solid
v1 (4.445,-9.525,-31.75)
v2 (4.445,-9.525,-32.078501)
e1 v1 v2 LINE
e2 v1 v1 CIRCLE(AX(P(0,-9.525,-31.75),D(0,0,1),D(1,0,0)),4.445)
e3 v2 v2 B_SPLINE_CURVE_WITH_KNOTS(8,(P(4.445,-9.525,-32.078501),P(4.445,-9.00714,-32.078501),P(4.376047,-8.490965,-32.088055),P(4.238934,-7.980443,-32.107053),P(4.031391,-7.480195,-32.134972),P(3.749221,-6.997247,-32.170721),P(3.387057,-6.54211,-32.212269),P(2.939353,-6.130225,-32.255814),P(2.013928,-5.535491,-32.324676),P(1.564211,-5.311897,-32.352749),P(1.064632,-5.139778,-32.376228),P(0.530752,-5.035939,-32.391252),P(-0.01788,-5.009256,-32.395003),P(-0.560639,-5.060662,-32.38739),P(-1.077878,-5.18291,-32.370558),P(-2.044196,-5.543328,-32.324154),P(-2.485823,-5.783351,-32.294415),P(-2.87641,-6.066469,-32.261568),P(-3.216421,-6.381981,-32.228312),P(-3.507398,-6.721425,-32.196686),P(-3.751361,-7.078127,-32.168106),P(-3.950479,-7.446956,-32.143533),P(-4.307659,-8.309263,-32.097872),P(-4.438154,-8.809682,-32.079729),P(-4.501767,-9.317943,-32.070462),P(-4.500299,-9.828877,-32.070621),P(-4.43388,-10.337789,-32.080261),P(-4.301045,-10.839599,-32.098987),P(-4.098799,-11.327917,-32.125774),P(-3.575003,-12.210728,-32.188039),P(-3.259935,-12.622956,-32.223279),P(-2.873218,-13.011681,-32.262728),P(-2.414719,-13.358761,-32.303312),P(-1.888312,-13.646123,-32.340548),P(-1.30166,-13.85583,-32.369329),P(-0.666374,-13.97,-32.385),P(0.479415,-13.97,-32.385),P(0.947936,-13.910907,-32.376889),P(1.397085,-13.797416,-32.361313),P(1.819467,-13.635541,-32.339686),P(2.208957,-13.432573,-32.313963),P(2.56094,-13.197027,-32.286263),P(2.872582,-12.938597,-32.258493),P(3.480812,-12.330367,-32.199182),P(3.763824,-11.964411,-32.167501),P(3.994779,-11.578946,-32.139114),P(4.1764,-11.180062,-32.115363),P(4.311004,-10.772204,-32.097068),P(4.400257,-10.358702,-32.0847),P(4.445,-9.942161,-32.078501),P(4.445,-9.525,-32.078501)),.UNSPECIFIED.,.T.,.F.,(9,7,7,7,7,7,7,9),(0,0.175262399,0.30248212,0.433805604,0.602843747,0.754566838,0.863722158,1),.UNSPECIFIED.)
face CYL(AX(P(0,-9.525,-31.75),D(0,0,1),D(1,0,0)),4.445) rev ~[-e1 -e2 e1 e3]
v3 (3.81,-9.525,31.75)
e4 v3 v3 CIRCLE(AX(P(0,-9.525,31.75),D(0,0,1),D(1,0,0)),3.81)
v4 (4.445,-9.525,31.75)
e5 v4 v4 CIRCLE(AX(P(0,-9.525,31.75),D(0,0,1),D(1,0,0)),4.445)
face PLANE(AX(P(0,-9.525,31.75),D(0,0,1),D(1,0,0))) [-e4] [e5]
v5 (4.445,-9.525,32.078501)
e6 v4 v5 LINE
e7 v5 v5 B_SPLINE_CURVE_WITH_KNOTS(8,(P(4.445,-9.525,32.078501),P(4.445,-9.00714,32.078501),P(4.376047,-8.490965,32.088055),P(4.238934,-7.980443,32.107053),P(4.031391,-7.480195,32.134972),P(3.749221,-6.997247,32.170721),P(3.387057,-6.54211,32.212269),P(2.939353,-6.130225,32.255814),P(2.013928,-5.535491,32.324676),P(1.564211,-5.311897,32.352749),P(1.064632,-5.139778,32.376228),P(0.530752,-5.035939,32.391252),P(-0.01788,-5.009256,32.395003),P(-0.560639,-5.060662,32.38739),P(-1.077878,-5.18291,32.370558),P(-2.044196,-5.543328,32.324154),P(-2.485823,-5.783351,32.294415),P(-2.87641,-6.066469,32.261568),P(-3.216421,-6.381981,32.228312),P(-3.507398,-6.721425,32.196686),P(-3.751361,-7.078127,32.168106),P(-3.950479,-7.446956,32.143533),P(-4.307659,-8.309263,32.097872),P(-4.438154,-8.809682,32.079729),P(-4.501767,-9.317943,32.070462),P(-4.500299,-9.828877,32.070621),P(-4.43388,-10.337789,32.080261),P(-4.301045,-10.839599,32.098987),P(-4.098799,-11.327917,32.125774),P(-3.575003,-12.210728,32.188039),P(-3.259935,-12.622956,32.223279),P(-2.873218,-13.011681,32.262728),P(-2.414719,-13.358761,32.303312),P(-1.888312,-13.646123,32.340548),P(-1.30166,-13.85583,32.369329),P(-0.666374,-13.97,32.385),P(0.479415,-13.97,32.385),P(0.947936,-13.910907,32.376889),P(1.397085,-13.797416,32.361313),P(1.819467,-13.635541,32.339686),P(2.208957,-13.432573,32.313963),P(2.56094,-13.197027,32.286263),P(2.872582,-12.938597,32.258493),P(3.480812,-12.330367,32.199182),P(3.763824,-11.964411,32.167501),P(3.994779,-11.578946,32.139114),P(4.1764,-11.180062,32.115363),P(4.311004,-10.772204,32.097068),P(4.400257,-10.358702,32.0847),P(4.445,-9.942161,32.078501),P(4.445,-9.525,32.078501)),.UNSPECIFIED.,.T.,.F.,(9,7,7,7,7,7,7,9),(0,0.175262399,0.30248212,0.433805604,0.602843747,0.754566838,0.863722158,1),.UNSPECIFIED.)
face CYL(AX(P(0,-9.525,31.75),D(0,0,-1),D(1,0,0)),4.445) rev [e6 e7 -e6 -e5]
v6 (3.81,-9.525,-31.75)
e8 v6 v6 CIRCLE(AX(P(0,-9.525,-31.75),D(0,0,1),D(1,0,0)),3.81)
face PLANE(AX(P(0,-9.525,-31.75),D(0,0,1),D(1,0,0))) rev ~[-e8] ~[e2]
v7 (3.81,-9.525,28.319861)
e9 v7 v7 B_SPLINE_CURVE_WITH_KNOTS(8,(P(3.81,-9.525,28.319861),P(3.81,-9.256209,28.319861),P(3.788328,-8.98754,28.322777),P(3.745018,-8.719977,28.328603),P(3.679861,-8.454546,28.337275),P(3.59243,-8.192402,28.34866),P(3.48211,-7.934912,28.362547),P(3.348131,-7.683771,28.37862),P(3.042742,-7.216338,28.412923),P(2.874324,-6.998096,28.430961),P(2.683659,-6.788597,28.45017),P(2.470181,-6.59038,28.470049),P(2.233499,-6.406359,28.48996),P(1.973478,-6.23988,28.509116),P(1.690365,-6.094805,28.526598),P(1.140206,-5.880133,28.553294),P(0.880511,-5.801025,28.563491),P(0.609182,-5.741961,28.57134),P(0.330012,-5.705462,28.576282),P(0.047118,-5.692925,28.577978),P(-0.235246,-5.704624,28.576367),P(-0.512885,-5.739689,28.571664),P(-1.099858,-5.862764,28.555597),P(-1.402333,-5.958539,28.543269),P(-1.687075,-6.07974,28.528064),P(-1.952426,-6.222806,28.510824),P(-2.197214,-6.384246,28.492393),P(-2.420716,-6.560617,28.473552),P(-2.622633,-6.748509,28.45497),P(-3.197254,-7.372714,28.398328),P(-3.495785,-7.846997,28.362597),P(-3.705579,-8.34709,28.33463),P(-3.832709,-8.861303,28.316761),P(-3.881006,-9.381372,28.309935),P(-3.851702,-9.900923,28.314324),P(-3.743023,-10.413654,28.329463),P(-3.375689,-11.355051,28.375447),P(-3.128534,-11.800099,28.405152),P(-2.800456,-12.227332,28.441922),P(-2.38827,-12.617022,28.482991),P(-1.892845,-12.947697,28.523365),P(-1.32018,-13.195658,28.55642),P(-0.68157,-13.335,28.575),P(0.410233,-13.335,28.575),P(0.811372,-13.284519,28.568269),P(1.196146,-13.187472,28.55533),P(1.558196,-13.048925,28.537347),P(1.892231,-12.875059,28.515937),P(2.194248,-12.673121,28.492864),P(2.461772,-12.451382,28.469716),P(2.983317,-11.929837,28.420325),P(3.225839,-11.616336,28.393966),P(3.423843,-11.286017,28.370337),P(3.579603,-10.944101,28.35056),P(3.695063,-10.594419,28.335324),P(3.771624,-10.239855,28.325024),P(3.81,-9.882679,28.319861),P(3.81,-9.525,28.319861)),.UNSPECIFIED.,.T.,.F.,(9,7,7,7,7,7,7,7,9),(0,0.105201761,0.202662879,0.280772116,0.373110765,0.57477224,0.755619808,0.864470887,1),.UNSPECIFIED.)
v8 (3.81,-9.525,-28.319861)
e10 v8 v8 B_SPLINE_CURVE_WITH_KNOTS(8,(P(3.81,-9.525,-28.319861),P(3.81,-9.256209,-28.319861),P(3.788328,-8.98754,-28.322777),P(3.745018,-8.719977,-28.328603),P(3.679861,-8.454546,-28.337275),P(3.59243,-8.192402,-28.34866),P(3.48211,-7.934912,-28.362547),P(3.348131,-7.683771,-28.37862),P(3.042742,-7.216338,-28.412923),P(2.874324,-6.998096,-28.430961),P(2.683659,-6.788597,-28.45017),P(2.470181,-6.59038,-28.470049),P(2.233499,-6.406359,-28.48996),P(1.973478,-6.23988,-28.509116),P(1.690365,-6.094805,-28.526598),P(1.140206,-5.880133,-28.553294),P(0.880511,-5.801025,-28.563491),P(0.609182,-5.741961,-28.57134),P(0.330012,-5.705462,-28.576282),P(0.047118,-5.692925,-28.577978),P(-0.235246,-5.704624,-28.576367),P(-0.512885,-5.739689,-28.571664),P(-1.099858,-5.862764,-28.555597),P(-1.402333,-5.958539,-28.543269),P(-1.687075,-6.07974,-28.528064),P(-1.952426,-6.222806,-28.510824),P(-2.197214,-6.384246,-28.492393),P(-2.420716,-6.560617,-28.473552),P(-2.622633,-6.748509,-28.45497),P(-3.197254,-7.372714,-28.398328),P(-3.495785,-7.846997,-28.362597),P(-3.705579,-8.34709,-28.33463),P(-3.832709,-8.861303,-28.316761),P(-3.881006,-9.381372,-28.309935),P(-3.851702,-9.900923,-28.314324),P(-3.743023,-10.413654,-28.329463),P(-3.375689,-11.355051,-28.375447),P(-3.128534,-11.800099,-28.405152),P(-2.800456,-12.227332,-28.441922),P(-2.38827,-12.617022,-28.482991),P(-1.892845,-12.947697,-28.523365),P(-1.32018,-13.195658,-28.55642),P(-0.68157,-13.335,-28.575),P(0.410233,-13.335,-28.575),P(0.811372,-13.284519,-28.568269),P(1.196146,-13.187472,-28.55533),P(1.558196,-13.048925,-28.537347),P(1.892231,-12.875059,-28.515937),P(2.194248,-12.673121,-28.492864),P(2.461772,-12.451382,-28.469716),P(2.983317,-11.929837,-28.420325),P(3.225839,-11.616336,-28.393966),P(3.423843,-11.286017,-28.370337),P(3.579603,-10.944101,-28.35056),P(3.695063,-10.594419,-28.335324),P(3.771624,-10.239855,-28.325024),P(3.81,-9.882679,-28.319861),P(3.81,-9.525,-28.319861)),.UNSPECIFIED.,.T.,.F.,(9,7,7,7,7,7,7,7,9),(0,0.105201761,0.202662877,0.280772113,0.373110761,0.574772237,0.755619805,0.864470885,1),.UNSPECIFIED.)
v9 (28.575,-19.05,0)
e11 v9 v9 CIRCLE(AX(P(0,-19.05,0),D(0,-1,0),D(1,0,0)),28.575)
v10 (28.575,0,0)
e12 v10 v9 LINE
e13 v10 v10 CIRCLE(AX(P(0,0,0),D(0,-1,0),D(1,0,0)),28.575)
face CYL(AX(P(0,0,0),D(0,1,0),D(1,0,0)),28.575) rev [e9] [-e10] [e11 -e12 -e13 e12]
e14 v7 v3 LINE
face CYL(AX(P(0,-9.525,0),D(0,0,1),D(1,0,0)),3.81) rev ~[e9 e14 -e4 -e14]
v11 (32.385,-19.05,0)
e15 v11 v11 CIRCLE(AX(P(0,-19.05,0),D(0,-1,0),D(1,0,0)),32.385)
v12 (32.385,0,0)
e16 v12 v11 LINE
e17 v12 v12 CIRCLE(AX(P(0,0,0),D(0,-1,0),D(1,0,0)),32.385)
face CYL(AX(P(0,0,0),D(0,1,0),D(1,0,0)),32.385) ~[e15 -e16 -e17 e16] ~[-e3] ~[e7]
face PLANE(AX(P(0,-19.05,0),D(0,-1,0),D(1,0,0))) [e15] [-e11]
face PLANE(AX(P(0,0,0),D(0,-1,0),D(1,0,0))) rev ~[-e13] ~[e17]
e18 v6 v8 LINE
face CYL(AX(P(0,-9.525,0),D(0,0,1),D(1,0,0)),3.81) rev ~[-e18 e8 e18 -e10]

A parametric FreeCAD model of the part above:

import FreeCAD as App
import Part
import Sketcher
Q = App.Units.Quantity

doc = App.newDocument("Part")
body = doc.addObject("PartDesign::Body", "Body")

sketch1 = body.newObject("Sketcher::SketchObject", "Sketch")
sketch1.AttachmentSupport = (doc.getObject("XZ_Plane"), [""])
sketch1.MapMode = "FlatFace"
sketch1.addGeometry(Part.Circle(App.Vector(0, 0, 0), App.Vector(0, 0, 1), 32), False)
sketch1.addGeometry(Part.Circle(App.Vector(0, 0, 0), App.Vector(0, 0, 1), 29), False)
sketch1.addConstraint(Sketcher.Constraint("Coincident", 0, 3, -1, 1))
sketch1.addConstraint(Sketcher.Constraint("Coincident", 1, 3, -1, 1))
sketch1.addConstraint(Sketcher.Constraint("Diameter", 0, Q("2.55 in")))
sketch1.addConstraint(Sketcher.Constraint("Diameter", 1, Q("2.25 in")))
pad1 = body.newObject("PartDesign::Pad", "Pad")
pad1.Profile = sketch1
pad1.Length = Q("0.75 in")

sketch2 = body.newObject("Sketcher::SketchObject", "Sketch001")
sketch2.AttachmentSupport = (doc.getObject("XY_Plane"), [""])
sketch2.MapMode = "FlatFace"
sketch2.addGeometry(Part.Circle(App.Vector(0, -9.5, 0), App.Vector(0, 0, 1), 3.8), False)
sketch2.addConstraint(Sketcher.Constraint("PointOnObject", 0, 3, -2))
sketch2.addConstraint(Sketcher.Constraint("Diameter", 0, Q("0.3 in")))
sketch2.addConstraint(Sketcher.Constraint("DistanceY", 0, 3, -1, 1, Q("0.375 in")))
pocket1 = body.newObject("PartDesign::Pocket", "Pocket")
pocket1.Profile = sketch2
pocket1.Length = Q("3 in")
pocket1.Midplane = True

sketch3 = body.newObject("Sketcher::SketchObject", "Sketch002")
sketch3.AttachmentSupport = (doc.getObject("XY_Plane"), [""])
sketch3.MapMode = "FlatFace"
sketch3.AttachmentOffset = App.Placement(App.Vector(0, 0, 1.25 * 25.4), App.Rotation())
sketch3.addGeometry(Part.Circle(App.Vector(0, -9.5, 0), App.Vector(0, 0, 1), 4.4), False)
sketch3.addGeometry(Part.Circle(App.Vector(0, -9.5, 0), App.Vector(0, 0, 1), 3.8), False)
sketch3.addConstraint(Sketcher.Constraint("Coincident", 1, 3, 0, 3))
sketch3.addConstraint(Sketcher.Constraint("PointOnObject", 0, 3, -2))
sketch3.addConstraint(Sketcher.Constraint("Diameter", 1, Q("0.3 in")))
sketch3.addConstraint(Sketcher.Constraint("Diameter", 0, Q("0.35 in")))
sketch3.addConstraint(Sketcher.Constraint("DistanceY", 0, 3, -1, 1, Q("0.375 in")))
pocket2 = body.newObject("PartDesign::Pocket", "Pocket001")
pocket2.Profile = sketch3
pocket2.Length = Q("1 in")
pocket2.Reversed = True

sketch4 = body.newObject("Sketcher::SketchObject", "Sketch003")
sketch4.AttachmentSupport = (doc.getObject("XY_Plane"), [""])
sketch4.MapMode = "FlatFace"
sketch4.AttachmentOffset = App.Placement(App.Vector(0, 0, -1.25 * 25.4), App.Rotation())
sketch4.addGeometry(Part.Circle(App.Vector(0, -9.5, 0), App.Vector(0, 0, 1), 4.4), False)
sketch4.addGeometry(Part.Circle(App.Vector(0, -9.5, 0), App.Vector(0, 0, 1), 3.8), False)
sketch4.addConstraint(Sketcher.Constraint("Coincident", 1, 3, 0, 3))
sketch4.addConstraint(Sketcher.Constraint("PointOnObject", 0, 3, -2))
sketch4.addConstraint(Sketcher.Constraint("Diameter", 1, Q("0.3 in")))
sketch4.addConstraint(Sketcher.Constraint("Diameter", 0, Q("0.35 in")))
sketch4.addConstraint(Sketcher.Constraint("DistanceY", 0, 3, -1, 1, Q("0.375 in")))
pocket3 = body.newObject("PartDesign::Pocket", "Pocket002")
pocket3.Profile = sketch4
pocket3.Length = Q("1 in")

doc.recompute()
